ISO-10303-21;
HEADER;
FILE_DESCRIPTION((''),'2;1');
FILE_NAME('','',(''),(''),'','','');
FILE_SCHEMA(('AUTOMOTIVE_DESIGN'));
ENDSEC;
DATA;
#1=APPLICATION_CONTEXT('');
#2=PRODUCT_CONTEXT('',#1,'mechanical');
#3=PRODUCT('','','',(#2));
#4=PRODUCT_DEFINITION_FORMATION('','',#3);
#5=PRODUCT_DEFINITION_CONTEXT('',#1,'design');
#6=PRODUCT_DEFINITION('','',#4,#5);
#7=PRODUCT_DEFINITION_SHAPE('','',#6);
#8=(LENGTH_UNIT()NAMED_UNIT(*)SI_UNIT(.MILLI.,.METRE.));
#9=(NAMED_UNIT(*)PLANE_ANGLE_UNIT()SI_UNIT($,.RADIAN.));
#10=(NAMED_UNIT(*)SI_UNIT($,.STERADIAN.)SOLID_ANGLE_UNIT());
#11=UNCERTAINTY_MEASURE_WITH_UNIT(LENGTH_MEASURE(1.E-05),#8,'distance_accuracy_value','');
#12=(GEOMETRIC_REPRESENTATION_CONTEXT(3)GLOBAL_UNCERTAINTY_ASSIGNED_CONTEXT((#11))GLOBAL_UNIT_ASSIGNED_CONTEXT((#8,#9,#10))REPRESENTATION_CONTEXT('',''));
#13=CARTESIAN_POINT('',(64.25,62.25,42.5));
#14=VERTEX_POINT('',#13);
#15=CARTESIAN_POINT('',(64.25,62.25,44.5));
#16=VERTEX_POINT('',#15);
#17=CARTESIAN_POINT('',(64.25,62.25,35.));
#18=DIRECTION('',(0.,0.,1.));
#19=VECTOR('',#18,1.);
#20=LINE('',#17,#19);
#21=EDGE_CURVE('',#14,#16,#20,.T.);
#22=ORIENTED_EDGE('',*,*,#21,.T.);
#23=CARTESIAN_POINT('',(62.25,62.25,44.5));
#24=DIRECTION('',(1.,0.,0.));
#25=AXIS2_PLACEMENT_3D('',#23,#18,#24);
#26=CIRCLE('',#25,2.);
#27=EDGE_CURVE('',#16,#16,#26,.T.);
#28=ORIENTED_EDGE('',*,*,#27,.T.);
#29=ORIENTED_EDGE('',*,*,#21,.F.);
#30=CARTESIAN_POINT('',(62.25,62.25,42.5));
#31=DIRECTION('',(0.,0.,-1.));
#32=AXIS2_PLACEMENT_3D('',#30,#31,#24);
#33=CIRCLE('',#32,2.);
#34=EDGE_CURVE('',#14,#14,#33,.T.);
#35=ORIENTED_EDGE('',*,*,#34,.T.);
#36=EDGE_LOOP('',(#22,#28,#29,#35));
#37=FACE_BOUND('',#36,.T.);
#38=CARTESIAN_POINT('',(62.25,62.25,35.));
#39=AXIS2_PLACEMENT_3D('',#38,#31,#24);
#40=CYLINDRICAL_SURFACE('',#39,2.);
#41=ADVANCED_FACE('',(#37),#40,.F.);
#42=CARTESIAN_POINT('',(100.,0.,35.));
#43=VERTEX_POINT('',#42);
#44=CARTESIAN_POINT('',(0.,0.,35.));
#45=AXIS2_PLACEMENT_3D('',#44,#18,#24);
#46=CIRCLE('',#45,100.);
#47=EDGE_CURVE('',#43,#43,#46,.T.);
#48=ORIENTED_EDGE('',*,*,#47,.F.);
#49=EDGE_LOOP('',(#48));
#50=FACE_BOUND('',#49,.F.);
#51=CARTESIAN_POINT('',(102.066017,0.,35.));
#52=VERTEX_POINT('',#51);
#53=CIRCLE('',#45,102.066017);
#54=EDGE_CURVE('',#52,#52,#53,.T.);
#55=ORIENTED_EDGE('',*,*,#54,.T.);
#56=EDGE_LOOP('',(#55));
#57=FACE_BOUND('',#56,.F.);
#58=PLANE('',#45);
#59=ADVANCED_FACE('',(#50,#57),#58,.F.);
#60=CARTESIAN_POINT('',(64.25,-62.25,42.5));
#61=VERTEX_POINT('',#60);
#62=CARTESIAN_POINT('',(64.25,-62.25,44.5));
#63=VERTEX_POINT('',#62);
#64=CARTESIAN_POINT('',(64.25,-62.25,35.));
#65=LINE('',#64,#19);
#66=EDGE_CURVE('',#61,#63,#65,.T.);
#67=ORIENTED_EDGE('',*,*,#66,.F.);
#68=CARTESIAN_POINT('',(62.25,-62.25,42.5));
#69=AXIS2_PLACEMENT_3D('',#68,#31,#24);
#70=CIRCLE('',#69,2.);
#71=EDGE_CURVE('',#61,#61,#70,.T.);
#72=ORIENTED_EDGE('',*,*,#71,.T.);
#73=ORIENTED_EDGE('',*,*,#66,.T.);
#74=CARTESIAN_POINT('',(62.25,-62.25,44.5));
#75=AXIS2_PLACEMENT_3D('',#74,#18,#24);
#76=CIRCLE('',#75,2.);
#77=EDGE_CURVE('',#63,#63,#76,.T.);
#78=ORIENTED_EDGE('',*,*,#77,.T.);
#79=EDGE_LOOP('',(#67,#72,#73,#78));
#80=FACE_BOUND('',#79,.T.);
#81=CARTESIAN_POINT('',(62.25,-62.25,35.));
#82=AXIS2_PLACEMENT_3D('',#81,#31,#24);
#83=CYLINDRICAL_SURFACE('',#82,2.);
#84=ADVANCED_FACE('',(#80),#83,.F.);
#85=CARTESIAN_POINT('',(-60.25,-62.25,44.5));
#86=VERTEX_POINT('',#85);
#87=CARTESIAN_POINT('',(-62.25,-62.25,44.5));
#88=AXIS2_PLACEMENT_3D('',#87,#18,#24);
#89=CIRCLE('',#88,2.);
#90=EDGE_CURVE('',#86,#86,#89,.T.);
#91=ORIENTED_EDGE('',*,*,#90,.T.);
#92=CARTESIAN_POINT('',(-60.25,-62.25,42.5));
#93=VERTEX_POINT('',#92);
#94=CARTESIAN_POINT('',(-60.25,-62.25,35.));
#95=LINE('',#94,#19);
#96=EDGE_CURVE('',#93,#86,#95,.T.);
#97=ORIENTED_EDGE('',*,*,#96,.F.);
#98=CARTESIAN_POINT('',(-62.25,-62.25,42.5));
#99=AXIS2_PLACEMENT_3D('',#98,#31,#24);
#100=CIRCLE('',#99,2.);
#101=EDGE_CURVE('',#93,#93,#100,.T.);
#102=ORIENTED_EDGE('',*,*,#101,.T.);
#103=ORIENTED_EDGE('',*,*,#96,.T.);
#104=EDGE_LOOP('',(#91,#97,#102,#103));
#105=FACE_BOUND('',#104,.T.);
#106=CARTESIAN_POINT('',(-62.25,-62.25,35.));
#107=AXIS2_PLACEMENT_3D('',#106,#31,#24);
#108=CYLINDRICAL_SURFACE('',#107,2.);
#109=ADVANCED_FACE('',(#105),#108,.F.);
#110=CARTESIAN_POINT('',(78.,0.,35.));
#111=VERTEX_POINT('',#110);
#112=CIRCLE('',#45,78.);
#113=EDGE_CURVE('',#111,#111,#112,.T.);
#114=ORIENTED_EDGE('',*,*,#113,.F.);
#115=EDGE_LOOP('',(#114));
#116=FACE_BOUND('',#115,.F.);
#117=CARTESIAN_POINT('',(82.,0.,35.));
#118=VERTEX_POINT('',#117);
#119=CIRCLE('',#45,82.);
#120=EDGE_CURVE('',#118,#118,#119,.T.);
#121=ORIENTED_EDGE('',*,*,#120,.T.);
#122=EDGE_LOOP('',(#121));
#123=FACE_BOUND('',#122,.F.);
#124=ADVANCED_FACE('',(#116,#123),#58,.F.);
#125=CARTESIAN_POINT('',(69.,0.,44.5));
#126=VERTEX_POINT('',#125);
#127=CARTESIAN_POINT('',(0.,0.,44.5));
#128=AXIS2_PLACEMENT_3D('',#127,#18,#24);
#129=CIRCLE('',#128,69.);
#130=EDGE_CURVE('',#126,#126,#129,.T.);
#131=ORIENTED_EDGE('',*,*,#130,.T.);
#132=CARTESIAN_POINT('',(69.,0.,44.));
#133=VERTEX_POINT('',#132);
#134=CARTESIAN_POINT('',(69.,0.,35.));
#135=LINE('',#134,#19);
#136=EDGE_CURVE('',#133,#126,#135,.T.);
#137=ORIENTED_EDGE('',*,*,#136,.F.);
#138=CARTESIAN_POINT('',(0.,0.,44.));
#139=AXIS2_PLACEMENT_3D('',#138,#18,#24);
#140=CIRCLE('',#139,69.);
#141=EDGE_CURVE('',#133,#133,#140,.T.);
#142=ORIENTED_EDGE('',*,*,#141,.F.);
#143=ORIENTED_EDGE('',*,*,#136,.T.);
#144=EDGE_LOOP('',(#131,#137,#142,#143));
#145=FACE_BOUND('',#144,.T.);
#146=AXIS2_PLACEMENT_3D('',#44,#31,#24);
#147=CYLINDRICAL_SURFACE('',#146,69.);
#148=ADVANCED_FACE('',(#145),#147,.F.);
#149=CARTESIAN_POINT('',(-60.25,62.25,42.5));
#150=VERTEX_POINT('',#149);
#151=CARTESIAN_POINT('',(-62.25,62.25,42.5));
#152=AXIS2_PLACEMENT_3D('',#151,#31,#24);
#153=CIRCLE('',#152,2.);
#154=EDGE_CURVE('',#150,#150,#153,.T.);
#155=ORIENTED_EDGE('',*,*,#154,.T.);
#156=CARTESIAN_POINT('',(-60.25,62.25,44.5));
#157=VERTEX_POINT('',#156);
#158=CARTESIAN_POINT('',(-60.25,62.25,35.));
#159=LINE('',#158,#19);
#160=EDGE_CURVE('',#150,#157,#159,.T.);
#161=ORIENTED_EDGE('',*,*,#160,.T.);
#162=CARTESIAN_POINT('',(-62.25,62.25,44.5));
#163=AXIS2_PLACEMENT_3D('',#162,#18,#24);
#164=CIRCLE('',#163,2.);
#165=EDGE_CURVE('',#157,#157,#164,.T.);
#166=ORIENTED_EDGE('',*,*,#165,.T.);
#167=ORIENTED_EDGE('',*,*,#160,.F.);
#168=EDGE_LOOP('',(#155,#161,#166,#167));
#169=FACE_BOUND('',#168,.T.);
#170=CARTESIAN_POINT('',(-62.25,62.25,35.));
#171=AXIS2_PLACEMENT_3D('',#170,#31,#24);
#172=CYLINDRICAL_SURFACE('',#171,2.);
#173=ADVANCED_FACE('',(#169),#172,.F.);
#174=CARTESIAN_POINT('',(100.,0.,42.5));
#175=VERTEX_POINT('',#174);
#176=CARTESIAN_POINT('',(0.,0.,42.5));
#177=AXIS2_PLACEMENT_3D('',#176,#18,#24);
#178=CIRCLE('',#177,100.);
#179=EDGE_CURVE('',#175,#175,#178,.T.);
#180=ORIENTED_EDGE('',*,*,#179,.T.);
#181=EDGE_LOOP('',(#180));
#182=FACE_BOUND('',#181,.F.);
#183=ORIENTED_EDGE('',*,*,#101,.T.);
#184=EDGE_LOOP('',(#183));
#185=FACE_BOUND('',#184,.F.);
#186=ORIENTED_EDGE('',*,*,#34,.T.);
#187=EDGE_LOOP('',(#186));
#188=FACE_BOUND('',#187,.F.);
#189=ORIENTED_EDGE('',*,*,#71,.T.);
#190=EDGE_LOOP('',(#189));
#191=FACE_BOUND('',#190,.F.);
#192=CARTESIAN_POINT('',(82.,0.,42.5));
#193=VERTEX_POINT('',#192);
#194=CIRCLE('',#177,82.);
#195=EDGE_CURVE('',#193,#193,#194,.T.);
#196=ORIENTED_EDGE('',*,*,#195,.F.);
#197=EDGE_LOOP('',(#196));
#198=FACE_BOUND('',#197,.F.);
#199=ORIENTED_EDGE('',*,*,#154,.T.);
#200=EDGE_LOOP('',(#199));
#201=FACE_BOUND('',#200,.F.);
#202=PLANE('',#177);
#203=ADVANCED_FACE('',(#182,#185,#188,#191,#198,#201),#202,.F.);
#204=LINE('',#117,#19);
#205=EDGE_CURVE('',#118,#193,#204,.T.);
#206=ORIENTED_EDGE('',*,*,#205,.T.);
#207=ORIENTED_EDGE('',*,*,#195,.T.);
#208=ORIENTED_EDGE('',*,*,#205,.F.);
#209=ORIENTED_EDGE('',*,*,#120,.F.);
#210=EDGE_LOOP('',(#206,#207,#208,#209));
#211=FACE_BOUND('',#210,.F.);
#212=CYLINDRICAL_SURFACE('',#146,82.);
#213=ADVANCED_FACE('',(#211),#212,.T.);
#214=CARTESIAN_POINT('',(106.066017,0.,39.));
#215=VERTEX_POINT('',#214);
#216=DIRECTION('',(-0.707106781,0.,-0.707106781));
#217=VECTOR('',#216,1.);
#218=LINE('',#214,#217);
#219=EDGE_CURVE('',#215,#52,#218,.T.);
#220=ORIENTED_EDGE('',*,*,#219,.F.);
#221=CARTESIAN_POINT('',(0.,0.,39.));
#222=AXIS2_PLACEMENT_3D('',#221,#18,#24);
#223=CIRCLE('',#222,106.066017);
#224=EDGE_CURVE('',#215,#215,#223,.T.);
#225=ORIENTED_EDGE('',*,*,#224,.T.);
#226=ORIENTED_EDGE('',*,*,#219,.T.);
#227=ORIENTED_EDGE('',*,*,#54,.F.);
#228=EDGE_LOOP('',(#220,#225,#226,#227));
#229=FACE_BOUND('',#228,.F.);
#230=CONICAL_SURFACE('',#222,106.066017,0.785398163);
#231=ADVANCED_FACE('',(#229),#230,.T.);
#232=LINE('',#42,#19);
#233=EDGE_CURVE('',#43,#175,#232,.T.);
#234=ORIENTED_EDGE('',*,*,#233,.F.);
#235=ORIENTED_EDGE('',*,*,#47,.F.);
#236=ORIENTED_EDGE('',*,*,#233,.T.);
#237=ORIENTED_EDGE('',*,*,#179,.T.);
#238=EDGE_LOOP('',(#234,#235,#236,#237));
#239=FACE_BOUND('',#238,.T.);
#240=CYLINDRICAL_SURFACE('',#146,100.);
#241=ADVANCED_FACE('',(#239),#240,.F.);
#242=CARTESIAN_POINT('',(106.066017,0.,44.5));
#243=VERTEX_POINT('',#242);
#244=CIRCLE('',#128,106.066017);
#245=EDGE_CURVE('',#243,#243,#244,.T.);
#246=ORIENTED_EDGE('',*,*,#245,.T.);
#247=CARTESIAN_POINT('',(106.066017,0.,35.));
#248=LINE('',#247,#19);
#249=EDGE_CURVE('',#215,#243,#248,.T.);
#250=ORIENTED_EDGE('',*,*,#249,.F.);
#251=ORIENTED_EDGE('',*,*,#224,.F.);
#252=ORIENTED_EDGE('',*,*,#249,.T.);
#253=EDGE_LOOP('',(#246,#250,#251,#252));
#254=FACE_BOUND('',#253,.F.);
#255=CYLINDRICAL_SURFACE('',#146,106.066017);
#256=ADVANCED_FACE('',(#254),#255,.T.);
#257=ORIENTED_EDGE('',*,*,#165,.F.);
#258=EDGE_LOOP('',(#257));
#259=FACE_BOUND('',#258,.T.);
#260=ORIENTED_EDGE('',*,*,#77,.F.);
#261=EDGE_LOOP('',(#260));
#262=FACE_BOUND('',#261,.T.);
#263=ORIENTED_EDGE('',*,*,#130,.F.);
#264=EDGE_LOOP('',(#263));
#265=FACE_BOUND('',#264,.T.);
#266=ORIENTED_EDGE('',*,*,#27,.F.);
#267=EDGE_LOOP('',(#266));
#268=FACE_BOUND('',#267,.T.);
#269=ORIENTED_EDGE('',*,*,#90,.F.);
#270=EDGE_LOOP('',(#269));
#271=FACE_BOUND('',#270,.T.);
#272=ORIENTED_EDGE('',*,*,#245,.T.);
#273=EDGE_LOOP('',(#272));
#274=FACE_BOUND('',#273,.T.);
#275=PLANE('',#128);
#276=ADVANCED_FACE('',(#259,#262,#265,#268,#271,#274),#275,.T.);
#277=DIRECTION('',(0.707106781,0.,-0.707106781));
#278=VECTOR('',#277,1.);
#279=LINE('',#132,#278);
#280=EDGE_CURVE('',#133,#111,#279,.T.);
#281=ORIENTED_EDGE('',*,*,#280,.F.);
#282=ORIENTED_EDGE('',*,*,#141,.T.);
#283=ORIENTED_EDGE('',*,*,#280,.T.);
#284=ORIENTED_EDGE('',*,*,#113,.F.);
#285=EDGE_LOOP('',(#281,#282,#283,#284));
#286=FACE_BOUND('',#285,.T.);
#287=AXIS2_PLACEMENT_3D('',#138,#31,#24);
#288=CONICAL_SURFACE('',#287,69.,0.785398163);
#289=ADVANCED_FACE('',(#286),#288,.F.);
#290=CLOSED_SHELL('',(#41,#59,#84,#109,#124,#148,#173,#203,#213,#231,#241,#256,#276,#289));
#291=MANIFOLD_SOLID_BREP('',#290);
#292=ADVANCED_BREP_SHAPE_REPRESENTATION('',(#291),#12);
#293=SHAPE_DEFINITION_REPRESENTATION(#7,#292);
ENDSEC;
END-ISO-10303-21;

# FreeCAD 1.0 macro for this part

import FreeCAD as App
import Part
import Sketcher
from FreeCAD import Vector
Q = App.Units.Quantity


def edges_at(feature, points):
    """Names of the edges that pass closest to the given points."""
    edges = feature.Shape.Edges
    near = lambda p: min(range(len(edges)), key=lambda i: edges[i].distToShape(Part.Vertex(*p))[0])
    return sorted({f"Edge{near(p) + 1}" for p in points})

doc = App.newDocument("Part")
body = doc.addObject("PartDesign::Body", "Body")

sketch1 = doc.addObject("Sketcher::SketchObject", "Sketch")
body.addObject(sketch1)
sketch1.AttachmentSupport = (doc.XY_Plane, [""])
sketch1.MapMode = "FlatFace"
sketch1.addGeometry([
    Part.Circle(Vector(0, 0, 0), Vector(0, 0, 1), 106.066017),
    Part.Circle(Vector(-62.25, -62.25, 0), Vector(0, 0, 1), 2),
    Part.Circle(Vector(62.25, -62.25, 0), Vector(0, 0, 1), 2),
    Part.Circle(Vector(-62.25, 62.25, 0), Vector(0, 0, 1), 2),
    Part.Circle(Vector(0, 0, 0), Vector(0, 0, 1), 69),
    Part.Circle(Vector(62.25, 62.25, 0), Vector(0, 0, 1), 2),
], False)
sketch1.addConstraint([
    Sketcher.Constraint("Coincident", 0, 3, -1, 1),
    Sketcher.Constraint("Coincident", 4, 3, -1, 1),
    Sketcher.Constraint("Equal", 1, 2),
    Sketcher.Constraint("Equal", 2, 3),
    Sketcher.Constraint("Equal", 3, 5),
    Sketcher.Constraint("Symmetric", 2, 3, 3, 3, -1, 1),
    Sketcher.Constraint("Symmetric", 1, 3, 5, 3, -1, 1),
    Sketcher.Constraint("Symmetric", 1, 3, 2, 3, -2),
    Sketcher.Constraint("Diameter", 1, Q("4 mm")),
    Sketcher.Constraint("Diameter", 4, Q("138 mm")),
    Sketcher.Constraint("DistanceX", 1, 3, 2, 3, Q("124.5 mm")),
    Sketcher.Constraint("DistanceY", 1, 3, 3, 3, Q("124.5 mm")),
    Sketcher.Constraint("Diameter", 0, Q("212.132034 mm")),
])
pad1 = doc.addObject("PartDesign::Pad", "Pad")
body.addObject(pad1)
pad1.Profile = sketch1
pad1.Length = 9.5

sketch2 = doc.addObject("Sketcher::SketchObject", "Sketch001")
body.addObject(sketch2)
sketch2.AttachmentSupport = (doc.XY_Plane, [""])
sketch2.MapMode = "FlatFace"
sketch2.addGeometry([
    Part.Circle(Vector(0, 0, 0), Vector(0, 0, 1), 100),
    Part.Circle(Vector(0, 0, 0), Vector(0, 0, 1), 82),
], False)
sketch2.addConstraint([
    Sketcher.Constraint("Coincident", 0, 3, -1, 1),
    Sketcher.Constraint("Coincident", 1, 3, -1, 1),
    Sketcher.Constraint("Diameter", 0, Q("200 mm")),
    Sketcher.Constraint("Diameter", 1, Q("164 mm")),
])
pocket1 = doc.addObject("PartDesign::Pocket", "Pocket")
body.addObject(pocket1)
pocket1.Profile = sketch2
pocket1.Length = 7.5
pocket1.Reversed = True
doc.recompute()

chamfer = doc.addObject("PartDesign::Chamfer", "Chamfer")
body.addObject(chamfer)
chamfer.Base = (pocket1, edges_at(pocket1, [(-69, 0, 0)]))
chamfer.Size = 9
doc.recompute()

chamfer2 = doc.addObject("PartDesign::Chamfer", "Chamfer001")
body.addObject(chamfer2)
chamfer2.Base = (chamfer, edges_at(chamfer, [(-106.066, 0, 0)]))
chamfer2.Size = 4
body2 = doc.addObject("PartDesign::Body", "Body001")
doc.recompute()

body.Placement = App.Placement(Vector(0, 0, 35), App.Rotation(Vector(0, 0, 1), 0))
boolean = doc.addObject("PartDesign::Boolean", "Boolean")
body2.addObject(boolean)
boolean.Type = "Fuse"
boolean.addObjects([body])

doc.recompute()
